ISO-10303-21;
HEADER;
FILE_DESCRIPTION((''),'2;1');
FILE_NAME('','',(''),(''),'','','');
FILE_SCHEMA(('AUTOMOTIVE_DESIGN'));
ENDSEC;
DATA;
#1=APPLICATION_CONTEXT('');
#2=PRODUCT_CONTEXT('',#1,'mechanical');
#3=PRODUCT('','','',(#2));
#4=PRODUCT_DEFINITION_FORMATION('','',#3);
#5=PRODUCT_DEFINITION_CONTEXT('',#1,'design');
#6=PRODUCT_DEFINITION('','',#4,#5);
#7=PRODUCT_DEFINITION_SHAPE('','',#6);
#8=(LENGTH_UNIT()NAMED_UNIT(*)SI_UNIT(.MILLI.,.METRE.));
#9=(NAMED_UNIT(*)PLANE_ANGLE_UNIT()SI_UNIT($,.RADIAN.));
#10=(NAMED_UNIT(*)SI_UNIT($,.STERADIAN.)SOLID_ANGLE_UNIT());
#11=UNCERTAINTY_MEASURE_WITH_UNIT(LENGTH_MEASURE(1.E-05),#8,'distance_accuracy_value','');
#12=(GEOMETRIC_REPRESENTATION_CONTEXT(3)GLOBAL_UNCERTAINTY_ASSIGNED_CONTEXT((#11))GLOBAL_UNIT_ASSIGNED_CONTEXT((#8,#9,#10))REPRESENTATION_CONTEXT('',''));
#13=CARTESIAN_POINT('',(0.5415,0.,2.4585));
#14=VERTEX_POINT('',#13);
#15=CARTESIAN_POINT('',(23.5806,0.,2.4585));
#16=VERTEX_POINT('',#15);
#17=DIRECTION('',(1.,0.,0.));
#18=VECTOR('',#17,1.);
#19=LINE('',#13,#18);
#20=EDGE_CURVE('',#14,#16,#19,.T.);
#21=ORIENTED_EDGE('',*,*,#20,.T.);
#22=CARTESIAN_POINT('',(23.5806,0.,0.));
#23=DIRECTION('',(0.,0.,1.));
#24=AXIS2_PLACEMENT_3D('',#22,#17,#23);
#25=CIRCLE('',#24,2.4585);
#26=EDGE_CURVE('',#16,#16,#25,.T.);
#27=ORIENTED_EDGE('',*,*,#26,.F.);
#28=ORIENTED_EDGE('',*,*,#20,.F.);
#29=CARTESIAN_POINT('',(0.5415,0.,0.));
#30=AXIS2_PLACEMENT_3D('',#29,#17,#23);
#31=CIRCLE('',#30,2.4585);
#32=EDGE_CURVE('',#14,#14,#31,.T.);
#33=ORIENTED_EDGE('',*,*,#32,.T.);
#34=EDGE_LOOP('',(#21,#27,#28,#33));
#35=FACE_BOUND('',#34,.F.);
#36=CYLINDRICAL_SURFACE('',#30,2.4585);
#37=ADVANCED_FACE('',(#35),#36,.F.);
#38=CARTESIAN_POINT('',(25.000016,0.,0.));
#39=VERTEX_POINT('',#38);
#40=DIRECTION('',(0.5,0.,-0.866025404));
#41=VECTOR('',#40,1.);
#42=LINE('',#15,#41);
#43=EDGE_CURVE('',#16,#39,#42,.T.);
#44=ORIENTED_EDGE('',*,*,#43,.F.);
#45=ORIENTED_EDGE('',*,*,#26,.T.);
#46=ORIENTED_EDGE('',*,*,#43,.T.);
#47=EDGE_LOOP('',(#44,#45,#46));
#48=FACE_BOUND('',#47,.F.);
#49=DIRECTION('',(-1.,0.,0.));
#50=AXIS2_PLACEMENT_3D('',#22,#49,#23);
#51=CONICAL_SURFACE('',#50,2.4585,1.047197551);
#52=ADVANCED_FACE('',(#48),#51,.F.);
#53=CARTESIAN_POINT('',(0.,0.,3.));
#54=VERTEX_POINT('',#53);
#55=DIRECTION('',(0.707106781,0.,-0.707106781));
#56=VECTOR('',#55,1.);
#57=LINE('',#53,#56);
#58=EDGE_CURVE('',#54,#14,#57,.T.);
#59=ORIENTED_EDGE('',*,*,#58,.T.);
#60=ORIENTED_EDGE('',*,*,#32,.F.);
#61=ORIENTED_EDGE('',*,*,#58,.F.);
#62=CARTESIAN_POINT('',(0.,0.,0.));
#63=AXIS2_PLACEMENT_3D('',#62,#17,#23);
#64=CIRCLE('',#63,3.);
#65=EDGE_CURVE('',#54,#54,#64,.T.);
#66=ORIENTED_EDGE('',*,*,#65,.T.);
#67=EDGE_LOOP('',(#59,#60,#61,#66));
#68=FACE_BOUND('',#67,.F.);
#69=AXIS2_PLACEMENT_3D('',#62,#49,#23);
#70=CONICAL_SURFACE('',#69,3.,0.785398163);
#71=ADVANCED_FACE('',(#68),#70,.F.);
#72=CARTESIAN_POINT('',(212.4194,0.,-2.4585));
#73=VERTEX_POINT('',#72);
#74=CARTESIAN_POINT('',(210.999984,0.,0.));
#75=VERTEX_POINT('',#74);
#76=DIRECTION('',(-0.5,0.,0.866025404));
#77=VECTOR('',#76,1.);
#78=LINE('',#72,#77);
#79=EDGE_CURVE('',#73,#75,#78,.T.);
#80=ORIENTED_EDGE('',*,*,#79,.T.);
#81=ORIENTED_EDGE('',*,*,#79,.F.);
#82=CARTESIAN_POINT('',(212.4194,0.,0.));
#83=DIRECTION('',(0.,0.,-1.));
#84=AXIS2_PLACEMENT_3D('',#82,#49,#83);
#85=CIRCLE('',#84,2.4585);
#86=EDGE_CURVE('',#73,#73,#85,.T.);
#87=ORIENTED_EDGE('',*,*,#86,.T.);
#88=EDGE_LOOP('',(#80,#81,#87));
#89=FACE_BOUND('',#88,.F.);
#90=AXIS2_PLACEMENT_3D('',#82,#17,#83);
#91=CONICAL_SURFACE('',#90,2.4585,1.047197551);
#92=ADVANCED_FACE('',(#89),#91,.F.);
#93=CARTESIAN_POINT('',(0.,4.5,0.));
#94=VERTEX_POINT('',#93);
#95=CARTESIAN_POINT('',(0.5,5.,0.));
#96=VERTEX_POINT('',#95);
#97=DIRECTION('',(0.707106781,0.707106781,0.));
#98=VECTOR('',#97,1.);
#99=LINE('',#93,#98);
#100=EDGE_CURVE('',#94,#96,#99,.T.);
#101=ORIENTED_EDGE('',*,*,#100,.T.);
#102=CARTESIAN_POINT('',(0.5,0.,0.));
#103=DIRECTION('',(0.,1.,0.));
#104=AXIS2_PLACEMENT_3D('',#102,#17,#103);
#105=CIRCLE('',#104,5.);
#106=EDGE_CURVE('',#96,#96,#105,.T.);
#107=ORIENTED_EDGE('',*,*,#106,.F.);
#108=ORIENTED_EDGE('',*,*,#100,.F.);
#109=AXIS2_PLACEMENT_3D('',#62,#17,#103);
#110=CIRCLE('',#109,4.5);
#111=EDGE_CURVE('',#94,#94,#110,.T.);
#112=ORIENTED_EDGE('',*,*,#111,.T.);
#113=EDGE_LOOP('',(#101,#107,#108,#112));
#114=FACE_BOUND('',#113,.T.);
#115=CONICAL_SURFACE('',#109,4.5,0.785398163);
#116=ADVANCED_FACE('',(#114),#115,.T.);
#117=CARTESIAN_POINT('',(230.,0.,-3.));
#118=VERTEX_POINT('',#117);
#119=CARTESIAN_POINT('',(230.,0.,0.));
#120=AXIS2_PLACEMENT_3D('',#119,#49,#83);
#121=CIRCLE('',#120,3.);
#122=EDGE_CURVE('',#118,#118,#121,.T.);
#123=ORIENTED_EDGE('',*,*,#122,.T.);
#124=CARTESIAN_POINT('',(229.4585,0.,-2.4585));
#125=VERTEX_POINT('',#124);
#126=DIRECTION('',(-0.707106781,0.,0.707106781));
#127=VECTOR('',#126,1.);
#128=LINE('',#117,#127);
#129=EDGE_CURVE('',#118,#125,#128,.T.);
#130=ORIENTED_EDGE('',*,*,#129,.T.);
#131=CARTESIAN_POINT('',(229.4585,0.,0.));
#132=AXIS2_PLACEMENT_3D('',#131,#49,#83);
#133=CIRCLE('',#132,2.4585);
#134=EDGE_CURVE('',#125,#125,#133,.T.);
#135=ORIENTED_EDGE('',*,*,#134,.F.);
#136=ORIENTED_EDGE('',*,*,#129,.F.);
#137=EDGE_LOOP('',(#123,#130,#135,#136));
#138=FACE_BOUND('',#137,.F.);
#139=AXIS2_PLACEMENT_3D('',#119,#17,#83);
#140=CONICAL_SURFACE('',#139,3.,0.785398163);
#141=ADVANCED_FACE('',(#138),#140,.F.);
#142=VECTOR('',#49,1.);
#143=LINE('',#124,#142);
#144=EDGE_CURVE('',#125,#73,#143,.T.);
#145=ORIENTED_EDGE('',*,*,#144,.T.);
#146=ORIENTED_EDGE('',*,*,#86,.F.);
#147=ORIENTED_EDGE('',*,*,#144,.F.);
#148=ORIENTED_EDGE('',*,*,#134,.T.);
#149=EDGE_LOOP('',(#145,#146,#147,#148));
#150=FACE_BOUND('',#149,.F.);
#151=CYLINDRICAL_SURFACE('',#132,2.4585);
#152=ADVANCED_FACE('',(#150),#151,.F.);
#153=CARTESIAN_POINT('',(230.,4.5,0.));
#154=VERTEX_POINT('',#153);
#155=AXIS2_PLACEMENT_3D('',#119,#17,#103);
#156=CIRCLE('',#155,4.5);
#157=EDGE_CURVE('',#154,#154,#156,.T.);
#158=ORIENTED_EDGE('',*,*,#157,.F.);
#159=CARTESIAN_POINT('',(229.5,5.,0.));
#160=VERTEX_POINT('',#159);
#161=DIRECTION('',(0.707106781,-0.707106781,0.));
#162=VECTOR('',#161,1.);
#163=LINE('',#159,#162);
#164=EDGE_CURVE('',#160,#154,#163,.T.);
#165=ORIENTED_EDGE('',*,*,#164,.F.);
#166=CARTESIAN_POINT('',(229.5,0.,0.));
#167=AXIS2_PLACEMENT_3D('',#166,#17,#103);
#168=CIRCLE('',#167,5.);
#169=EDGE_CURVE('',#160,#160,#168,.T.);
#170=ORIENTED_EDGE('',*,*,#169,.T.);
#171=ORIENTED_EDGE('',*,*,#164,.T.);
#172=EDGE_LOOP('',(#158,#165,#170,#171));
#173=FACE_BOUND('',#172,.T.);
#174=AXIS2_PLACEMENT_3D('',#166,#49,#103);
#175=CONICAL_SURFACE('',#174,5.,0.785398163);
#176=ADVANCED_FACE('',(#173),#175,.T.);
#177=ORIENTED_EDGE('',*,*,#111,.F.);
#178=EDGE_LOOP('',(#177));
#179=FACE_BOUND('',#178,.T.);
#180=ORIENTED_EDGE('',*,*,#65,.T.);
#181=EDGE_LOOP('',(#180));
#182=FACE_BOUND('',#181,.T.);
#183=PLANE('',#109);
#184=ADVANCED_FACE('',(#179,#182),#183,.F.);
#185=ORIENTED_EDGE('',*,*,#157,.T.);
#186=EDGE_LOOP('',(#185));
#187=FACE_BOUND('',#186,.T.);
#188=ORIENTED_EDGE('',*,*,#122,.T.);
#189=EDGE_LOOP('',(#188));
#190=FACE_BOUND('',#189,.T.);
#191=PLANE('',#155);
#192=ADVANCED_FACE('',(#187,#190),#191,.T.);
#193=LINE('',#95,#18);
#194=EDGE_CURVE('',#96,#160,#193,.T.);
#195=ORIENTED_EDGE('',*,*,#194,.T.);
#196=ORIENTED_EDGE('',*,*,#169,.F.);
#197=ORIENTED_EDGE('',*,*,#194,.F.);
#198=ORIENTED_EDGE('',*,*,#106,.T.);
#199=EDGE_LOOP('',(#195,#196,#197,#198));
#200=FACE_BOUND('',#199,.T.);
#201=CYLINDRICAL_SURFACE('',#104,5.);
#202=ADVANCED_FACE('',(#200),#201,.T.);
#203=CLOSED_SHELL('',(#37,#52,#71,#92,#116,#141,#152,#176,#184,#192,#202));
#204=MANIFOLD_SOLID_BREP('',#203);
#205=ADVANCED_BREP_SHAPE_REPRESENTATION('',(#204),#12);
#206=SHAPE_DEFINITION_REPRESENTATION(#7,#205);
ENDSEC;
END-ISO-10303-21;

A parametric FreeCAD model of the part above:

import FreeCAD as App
import Part
import Sketcher

V = App.Vector
Q = App.Units.Quantity

doc = App.newDocument("Part")
body = doc.addObject("PartDesign::Body", "Body")

# Sketch on XY plane
sketch1 = body.newObject("Sketcher::SketchObject", "Sketch")
sketch1.AttachmentSupport = (doc.getObject("XY_Plane"), [""])
sketch1.MapMode = "FlatFace"
sketch1.addGeometry(Part.LineSegment(V(0, 0, 0), V(230, 0, 0)), False)
sketch1.addGeometry(Part.LineSegment(V(230, 0, 0), V(230, 4.5, 0)), False)
sketch1.addGeometry(Part.LineSegment(V(230, 4.5, 0), V(229.5, 5, 0)), False)
sketch1.addGeometry(Part.LineSegment(V(229.5, 5, 0), V(0.5, 5, 0)), False)
sketch1.addGeometry(Part.LineSegment(V(0.5, 5, 0), V(0, 4.5, 0)), False)
sketch1.addGeometry(Part.LineSegment(V(0, 4.5, 0), V(0, 0, 0)), False)
sketch1.addConstraint(Sketcher.Constraint("Coincident", 0, 2, 1, 1))
sketch1.addConstraint(Sketcher.Constraint("Coincident", 1, 2, 2, 1))
sketch1.addConstraint(Sketcher.Constraint("Coincident", 2, 2, 3, 1))
sketch1.addConstraint(Sketcher.Constraint("Coincident", 3, 2, 4, 1))
sketch1.addConstraint(Sketcher.Constraint("Coincident", 4, 2, 5, 1))
sketch1.addConstraint(Sketcher.Constraint("Coincident", 5, 2, 0, 1))
sketch1.addConstraint(Sketcher.Constraint("Horizontal", 0))
sketch1.addConstraint(Sketcher.Constraint("Vertical", 1))
sketch1.addConstraint(Sketcher.Constraint("Horizontal", 3))
sketch1.addConstraint(Sketcher.Constraint("Vertical", 5))
sketch1.addConstraint(Sketcher.Constraint("Coincident", 5, 2, -1, 1))
sketch1.addConstraint(Sketcher.Constraint("Perpendicular", 2, 4))
sketch1.addConstraint(Sketcher.Constraint("Horizontal", 1, 2, 4, 2))
sketch1.addConstraint(Sketcher.Constraint("Equal", 2, 4))
sketch1.addConstraint(Sketcher.Constraint("DistanceX", 0, 1, 0, 2, Q("230 mm")))
sketch1.addConstraint(Sketcher.Constraint("DistanceX", 3, 2, 3, 1, Q("229 mm")))
sketch1.addConstraint(Sketcher.Constraint("DistanceY", 1, 1, 1, 2, Q("4.5 mm")))
revolution = body.newObject("PartDesign::Revolution", "Revolution")
revolution.Profile = sketch1
revolution.ReferenceAxis = (sketch1, ["H_Axis"])
revolution.Angle = 360

# Sketch on YZ plane
sketch2 = body.newObject("Sketcher::SketchObject", "Sketch001")
sketch2.AttachmentSupport = (doc.getObject("YZ_Plane"), [""])
sketch2.MapMode = "FlatFace"
sketch2.addGeometry(Part.Circle(V(0, 0, 0), V(0, 0, 1), 2.5), False)
sketch2.addConstraint(Sketcher.Constraint("Coincident", 0, 3, -1, 1))
sketch2.addConstraint(Sketcher.Constraint("Diameter", 0, Q("4.917 mm")))
doc.recompute()
hole = body.newObject("PartDesign::Hole", "Hole")
hole.Profile = sketch2
hole.ThreadType = "None"
hole.Diameter = 4.917
hole.DepthType = "Dimension"
hole.Depth = 23.5806
hole.DrillPoint = "Angled"
hole.DrillPointAngle = 120
hole.HoleCutType = "Countersink"
hole.HoleCutDiameter = 6
hole.HoleCutCountersinkAngle = 90
hole.Reversed = True

# Sketch on YZ plane
sketch3 = body.newObject("Sketcher::SketchObject", "Sketch002")
sketch3.AttachmentSupport = (doc.getObject("YZ_Plane"), [""])
sketch3.MapMode = "FlatFace"
sketch3.AttachmentOffset = App.Placement(V(0, 0, 230), App.Rotation())
sketch3.addGeometry(Part.Circle(V(0, 0, 0), V(0, 0, 1), 2.5), False)
sketch3.addConstraint(Sketcher.Constraint("Coincident", 0, 3, -1, 1))
sketch3.addConstraint(Sketcher.Constraint("Diameter", 0, Q("4.917 mm")))
doc.recompute()
hole2 = body.newObject("PartDesign::Hole", "Hole001")
hole2.Profile = sketch3
hole2.ThreadType = "None"
hole2.Diameter = 4.917
hole2.DepthType = "Dimension"
hole2.Depth = 17.5806
hole2.DrillPoint = "Angled"
hole2.DrillPointAngle = 120
hole2.HoleCutType = "Countersink"
hole2.HoleCutDiameter = 6
hole2.HoleCutCountersinkAngle = 90

doc.recompute()
